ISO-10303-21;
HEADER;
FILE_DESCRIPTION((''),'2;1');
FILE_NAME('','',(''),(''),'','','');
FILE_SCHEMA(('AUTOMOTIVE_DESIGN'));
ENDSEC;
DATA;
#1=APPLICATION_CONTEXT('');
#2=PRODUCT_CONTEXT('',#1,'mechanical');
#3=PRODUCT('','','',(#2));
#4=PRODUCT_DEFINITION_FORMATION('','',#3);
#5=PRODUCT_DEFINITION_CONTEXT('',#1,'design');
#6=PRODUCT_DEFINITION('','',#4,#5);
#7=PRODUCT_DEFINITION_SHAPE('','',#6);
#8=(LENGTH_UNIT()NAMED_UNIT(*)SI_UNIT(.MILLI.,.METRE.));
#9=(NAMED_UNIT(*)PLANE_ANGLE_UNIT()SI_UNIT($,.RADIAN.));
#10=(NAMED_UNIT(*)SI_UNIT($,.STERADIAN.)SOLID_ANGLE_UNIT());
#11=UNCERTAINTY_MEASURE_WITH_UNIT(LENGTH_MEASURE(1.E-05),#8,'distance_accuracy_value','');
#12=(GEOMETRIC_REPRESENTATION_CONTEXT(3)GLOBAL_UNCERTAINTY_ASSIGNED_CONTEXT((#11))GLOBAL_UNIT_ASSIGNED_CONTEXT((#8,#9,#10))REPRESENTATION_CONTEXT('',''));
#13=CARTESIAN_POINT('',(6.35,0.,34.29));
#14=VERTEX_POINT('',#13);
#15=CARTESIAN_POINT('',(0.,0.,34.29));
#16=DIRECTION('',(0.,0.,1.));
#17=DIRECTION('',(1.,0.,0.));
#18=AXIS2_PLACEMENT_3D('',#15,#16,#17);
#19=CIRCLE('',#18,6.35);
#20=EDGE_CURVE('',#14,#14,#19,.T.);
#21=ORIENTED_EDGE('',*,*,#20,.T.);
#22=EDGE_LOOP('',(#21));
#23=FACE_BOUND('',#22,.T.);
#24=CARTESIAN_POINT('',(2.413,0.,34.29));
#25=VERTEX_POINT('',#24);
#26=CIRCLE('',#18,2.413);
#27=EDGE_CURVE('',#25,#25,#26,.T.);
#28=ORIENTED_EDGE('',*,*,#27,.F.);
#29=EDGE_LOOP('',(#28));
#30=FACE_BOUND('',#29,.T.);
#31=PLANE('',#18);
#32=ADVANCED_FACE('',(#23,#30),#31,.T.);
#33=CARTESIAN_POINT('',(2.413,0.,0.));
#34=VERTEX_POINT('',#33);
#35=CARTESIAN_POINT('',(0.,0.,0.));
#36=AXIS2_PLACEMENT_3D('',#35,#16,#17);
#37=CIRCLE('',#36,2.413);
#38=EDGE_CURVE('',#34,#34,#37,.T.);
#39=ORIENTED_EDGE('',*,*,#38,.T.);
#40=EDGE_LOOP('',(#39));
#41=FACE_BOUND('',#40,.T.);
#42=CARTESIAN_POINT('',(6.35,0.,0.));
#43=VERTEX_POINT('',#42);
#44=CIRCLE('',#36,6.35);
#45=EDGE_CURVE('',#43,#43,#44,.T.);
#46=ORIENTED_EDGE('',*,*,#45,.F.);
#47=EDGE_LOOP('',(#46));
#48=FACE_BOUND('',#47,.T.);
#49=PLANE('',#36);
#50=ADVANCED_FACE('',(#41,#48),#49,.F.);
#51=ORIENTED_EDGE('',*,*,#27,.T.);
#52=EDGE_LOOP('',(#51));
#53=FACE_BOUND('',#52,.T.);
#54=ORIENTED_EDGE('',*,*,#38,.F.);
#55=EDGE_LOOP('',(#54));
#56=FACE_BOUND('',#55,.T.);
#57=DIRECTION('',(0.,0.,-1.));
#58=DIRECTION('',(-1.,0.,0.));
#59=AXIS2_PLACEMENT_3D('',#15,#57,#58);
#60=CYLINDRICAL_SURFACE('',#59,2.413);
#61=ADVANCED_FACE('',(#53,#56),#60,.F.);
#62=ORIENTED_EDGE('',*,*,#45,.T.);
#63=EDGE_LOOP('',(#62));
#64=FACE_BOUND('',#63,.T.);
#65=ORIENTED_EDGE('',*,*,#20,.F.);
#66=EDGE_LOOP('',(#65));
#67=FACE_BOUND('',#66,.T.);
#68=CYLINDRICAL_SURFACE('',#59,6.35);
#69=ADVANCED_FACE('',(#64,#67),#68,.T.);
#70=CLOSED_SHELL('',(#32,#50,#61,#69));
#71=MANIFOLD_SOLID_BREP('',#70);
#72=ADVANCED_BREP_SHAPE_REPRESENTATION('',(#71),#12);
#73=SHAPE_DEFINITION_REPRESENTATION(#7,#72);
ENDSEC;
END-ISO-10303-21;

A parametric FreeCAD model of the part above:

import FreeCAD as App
import Part
import Sketcher
Q = App.Units.Quantity

doc = App.newDocument("Part")
body = doc.addObject("PartDesign::Body", "Body")

sketch1 = body.newObject("Sketcher::SketchObject", "Sketch")
sketch1.AttachmentSupport = (doc.getObject("XY_Plane"), [""])
sketch1.MapMode = "FlatFace"
sketch1.addGeometry([
    Part.Circle(App.Vector(0, 0, 0), App.Vector(0, 0, 1), 6.3),
    Part.Circle(App.Vector(0, 0, 0), App.Vector(0, 0, 1), 2.4),
], False)
sketch1.addConstraint([
    Sketcher.Constraint("Coincident", 0, 3, -1, 1),
    Sketcher.Constraint("Coincident", 1, 3, -1, 1),
    Sketcher.Constraint("Diameter", 0, Q("0.5 in")),
    Sketcher.Constraint("Diameter", 1, Q("0.19 in")),
])
pad1 = body.newObject("PartDesign::Pad", "Pad")
pad1.Profile = sketch1
pad1.Length = Q("1.35 in")

doc.recompute()
